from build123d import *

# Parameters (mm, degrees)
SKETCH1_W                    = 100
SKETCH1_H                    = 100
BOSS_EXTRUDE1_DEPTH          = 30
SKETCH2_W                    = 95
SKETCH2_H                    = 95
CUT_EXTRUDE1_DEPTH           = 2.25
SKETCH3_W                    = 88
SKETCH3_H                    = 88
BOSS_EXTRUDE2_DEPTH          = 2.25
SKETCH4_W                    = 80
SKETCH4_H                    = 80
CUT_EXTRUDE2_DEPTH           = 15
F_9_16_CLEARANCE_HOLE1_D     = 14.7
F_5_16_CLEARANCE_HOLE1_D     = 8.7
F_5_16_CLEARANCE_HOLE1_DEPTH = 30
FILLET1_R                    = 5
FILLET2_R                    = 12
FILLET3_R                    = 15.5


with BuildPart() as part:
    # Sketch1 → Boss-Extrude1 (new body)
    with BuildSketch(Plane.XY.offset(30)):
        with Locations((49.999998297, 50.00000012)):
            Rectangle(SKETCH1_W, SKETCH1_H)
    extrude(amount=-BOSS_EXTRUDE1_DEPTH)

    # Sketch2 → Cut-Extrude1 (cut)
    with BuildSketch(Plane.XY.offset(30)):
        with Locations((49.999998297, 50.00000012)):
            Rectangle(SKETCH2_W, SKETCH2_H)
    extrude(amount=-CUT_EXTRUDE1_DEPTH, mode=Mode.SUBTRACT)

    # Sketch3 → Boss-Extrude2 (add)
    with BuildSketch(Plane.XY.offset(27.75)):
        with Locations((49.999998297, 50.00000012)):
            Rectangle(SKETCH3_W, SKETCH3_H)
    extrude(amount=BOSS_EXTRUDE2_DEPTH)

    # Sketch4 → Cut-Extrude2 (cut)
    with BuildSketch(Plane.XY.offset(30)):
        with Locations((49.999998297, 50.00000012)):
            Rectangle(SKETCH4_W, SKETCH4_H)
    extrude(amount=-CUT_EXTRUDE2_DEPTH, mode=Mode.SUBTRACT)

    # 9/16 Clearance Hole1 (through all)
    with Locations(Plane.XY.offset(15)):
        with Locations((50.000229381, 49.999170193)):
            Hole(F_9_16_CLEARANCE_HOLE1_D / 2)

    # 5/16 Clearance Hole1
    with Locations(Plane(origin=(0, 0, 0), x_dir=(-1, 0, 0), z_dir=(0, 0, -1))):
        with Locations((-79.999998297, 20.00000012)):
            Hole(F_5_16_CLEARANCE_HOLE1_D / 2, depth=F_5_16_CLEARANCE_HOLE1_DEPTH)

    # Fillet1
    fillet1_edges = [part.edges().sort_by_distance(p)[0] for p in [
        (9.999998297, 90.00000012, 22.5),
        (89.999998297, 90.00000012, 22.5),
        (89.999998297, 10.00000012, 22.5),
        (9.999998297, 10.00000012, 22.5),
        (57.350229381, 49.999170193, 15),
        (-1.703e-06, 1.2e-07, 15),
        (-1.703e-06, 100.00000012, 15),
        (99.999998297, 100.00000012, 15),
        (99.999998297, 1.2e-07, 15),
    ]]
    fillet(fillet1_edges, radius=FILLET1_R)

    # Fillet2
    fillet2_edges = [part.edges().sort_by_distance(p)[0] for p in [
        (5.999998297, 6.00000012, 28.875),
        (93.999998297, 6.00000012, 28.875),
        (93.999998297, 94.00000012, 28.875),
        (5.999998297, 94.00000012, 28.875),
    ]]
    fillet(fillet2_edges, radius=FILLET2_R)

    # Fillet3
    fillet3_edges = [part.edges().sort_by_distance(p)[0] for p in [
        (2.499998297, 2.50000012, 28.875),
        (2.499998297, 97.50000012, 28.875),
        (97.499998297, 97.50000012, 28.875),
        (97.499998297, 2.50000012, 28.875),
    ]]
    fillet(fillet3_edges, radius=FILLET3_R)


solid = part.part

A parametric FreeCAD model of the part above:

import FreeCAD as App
import Part
import Sketcher
from FreeCAD import Vector
Q = App.Units.Quantity


def edges_at(feature, points):
    """Names of the edges that pass closest to the given points."""
    edges = feature.Shape.Edges
    near = lambda p: min(range(len(edges)), key=lambda i: edges[i].distToShape(Part.Vertex(*p))[0])
    return sorted({f"Edge{near(p) + 1}" for p in points})

doc = App.newDocument("Part")
body = doc.addObject("PartDesign::Body", "Body")

# Sketch on XY plane
sketch1 = body.newObject("Sketcher::SketchObject", "Sketch")
sketch1.AttachmentSupport = (doc.getObject("XY_Plane"), [""])
sketch1.MapMode = "FlatFace"
sketch1.AttachmentOffset = App.Placement(Vector(0, 0, 30), App.Rotation())
sketch1.addGeometry([
    Part.LineSegment(Vector(-0.000002, 100, 0), Vector(-0.000002, 0, 0)),
    Part.LineSegment(Vector(-0.000002, 0, 0), Vector(99.999998, 0, 0)),
    Part.LineSegment(Vector(99.999998, 0, 0), Vector(99.999998, 100, 0)),
    Part.LineSegment(Vector(99.999998, 100, 0), Vector(-0.000002, 100, 0)),
], False)
sketch1.addConstraint([
    Sketcher.Constraint("Coincident", 0, 2, 1, 1),
    Sketcher.Constraint("Coincident", 1, 2, 2, 1),
    Sketcher.Constraint("Coincident", 2, 2, 3, 1),
    Sketcher.Constraint("Coincident", 3, 2, 0, 1),
    Sketcher.Constraint("Vertical", 0),
    Sketcher.Constraint("Horizontal", 1),
    Sketcher.Constraint("Vertical", 2),
    Sketcher.Constraint("Horizontal", 3),
    Sketcher.Constraint("Coincident", 0, 2, -1, 1),
    Sketcher.Constraint("Equal", 3, 0),
    Sketcher.Constraint("DistanceX", 1, 1, 1, 2, Q("100 mm")),
])
pad1 = body.newObject("PartDesign::Pad", "Pad")
pad1.Profile = sketch1
pad1.Length = 30
pad1.Reversed = True

# Sketch on XY plane
sketch2 = body.newObject("Sketcher::SketchObject", "Sketch001")
sketch2.AttachmentSupport = (doc.getObject("XY_Plane"), [""])
sketch2.MapMode = "FlatFace"
sketch2.AttachmentOffset = App.Placement(Vector(0, 0, 30), App.Rotation())
sketch2.addGeometry([
    Part.LineSegment(Vector(2.499998, 97.5, 0), Vector(2.499998, 2.5, 0)),
    Part.LineSegment(Vector(2.499998, 2.5, 0), Vector(97.499998, 2.5, 0)),
    Part.LineSegment(Vector(97.499998, 2.5, 0), Vector(97.499998, 97.5, 0)),
    Part.LineSegment(Vector(97.499998, 97.5, 0), Vector(2.499998, 97.5, 0)),
], False)
sketch2.addConstraint([
    Sketcher.Constraint("Coincident", 0, 2, 1, 1),
    Sketcher.Constraint("Coincident", 1, 2, 2, 1),
    Sketcher.Constraint("Coincident", 2, 2, 3, 1),
    Sketcher.Constraint("Coincident", 3, 2, 0, 1),
    Sketcher.Constraint("Vertical", 0),
    Sketcher.Constraint("Horizontal", 1),
    Sketcher.Constraint("Vertical", 2),
    Sketcher.Constraint("Horizontal", 3),
    Sketcher.Constraint("Equal", 3, 0),
    Sketcher.Constraint("DistanceX", 1, 1, 1, 2, Q("95 mm")),
    Sketcher.Constraint("DistanceX", -1, 1, 0, 2, Q("2.499998 mm")),
    Sketcher.Constraint("DistanceY", -1, 1, 0, 2, Q("2.5 mm")),
])
pocket1 = body.newObject("PartDesign::Pocket", "Pocket")
pocket1.Profile = sketch2
pocket1.Length = 2.25

# Sketch on XY plane
sketch3 = body.newObject("Sketcher::SketchObject", "Sketch002")
sketch3.AttachmentSupport = (doc.getObject("XY_Plane"), [""])
sketch3.MapMode = "FlatFace"
sketch3.AttachmentOffset = App.Placement(Vector(0, 0, 27.75), App.Rotation())
sketch3.addGeometry([
    Part.LineSegment(Vector(5.999998, 94, 0), Vector(5.999998, 6, 0)),
    Part.LineSegment(Vector(5.999998, 6, 0), Vector(93.999998, 6, 0)),
    Part.LineSegment(Vector(93.999998, 6, 0), Vector(93.999998, 94, 0)),
    Part.LineSegment(Vector(93.999998, 94, 0), Vector(5.999998, 94, 0)),
], False)
sketch3.addConstraint([
    Sketcher.Constraint("Coincident", 0, 2, 1, 1),
    Sketcher.Constraint("Coincident", 1, 2, 2, 1),
    Sketcher.Constraint("Coincident", 2, 2, 3, 1),
    Sketcher.Constraint("Coincident", 3, 2, 0, 1),
    Sketcher.Constraint("Vertical", 0),
    Sketcher.Constraint("Horizontal", 1),
    Sketcher.Constraint("Vertical", 2),
    Sketcher.Constraint("Horizontal", 3),
    Sketcher.Constraint("Equal", 3, 0),
    Sketcher.Constraint("DistanceX", 1, 1, 1, 2, Q("88 mm")),
    Sketcher.Constraint("DistanceX", -1, 1, 0, 2, Q("5.999998 mm")),
    Sketcher.Constraint("DistanceY", -1, 1, 0, 2, Q("6 mm")),
])
pad2 = body.newObject("PartDesign::Pad", "Pad001")
pad2.Profile = sketch3
pad2.Length = 2.25

# Sketch on XY plane
sketch4 = body.newObject("Sketcher::SketchObject", "Sketch003")
sketch4.AttachmentSupport = (doc.getObject("XY_Plane"), [""])
sketch4.MapMode = "FlatFace"
sketch4.AttachmentOffset = App.Placement(Vector(0, 0, 30), App.Rotation())
sketch4.addGeometry([
    Part.LineSegment(Vector(9.999998, 90, 0), Vector(9.999998, 10, 0)),
    Part.LineSegment(Vector(9.999998, 10, 0), Vector(89.999998, 10, 0)),
    Part.LineSegment(Vector(89.999998, 10, 0), Vector(89.999998, 90, 0)),
    Part.LineSegment(Vector(89.999998, 90, 0), Vector(9.999998, 90, 0)),
], False)
sketch4.addConstraint([
    Sketcher.Constraint("Coincident", 0, 2, 1, 1),
    Sketcher.Constraint("Coincident", 1, 2, 2, 1),
    Sketcher.Constraint("Coincident", 2, 2, 3, 1),
    Sketcher.Constraint("Coincident", 3, 2, 0, 1),
    Sketcher.Constraint("Vertical", 0),
    Sketcher.Constraint("Horizontal", 1),
    Sketcher.Constraint("Vertical", 2),
    Sketcher.Constraint("Horizontal", 3),
    Sketcher.Constraint("Equal", 3, 0),
    Sketcher.Constraint("DistanceX", 1, 1, 1, 2, Q("80 mm")),
    Sketcher.Constraint("DistanceX", -1, 1, 0, 2, Q("9.999998 mm")),
    Sketcher.Constraint("DistanceY", -1, 1, 0, 2, Q("10 mm")),
])
pocket2 = body.newObject("PartDesign::Pocket", "Pocket001")
pocket2.Profile = sketch4
pocket2.Length = 15

# Sketch on XY plane
sketch5 = body.newObject("Sketcher::SketchObject", "Sketch004")
sketch5.AttachmentSupport = (doc.getObject("XY_Plane"), [""])
sketch5.MapMode = "FlatFace"
sketch5.AttachmentOffset = App.Placement(Vector(0, 0, 15), App.Rotation())
sketch5.addGeometry(Part.Circle(Vector(50.000229, 49.99917, 0), Vector(0, 0, 1), 7.35), False)
sketch5.addConstraint([
    Sketcher.Constraint("Diameter", 0, Q("14.7 mm")),
    Sketcher.Constraint("DistanceX", -1, 1, 0, 3, Q("50.000229 mm")),
    Sketcher.Constraint("DistanceY", -1, 1, 0, 3, Q("49.99917 mm")),
])
doc.recompute()
hole = body.newObject("PartDesign::Hole", "Hole")
hole.Profile = sketch5
hole.ThreadType = "None"
hole.Diameter = 14.7
hole.DepthType = "ThroughAll"

# Sketch on XY plane
sketch6 = body.newObject("Sketcher::SketchObject", "Sketch005")
sketch6.AttachmentSupport = (doc.getObject("XY_Plane"), [""])
sketch6.MapMode = "FlatFace"
sketch6.addGeometry(Part.Circle(Vector(79.999998, 20, 0), Vector(0, 0, 1), 4.35), False)
sketch6.addConstraint([
    Sketcher.Constraint("Diameter", 0, Q("8.7 mm")),
    Sketcher.Constraint("DistanceX", -1, 1, 0, 3, Q("79.999998 mm")),
    Sketcher.Constraint("DistanceY", -1, 1, 0, 3, Q("20 mm")),
])
doc.recompute()
hole2 = body.newObject("PartDesign::Hole", "Hole001")
hole2.Profile = sketch6
hole2.ThreadType = "None"
hole2.Diameter = 8.7
hole2.DepthType = "Dimension"
hole2.Depth = 30
hole2.DrillPoint = "Flat"
hole2.Reversed = True
doc.recompute()

fillet = body.newObject("PartDesign::Fillet", "Fillet")
fillet.Base = (hole2, edges_at(hole2, [
    (10, 90, 22.5),
    (90, 90, 22.5),
    (90, 10, 22.5),
    (10, 10, 22.5),
    (57.35, 49.999, 15),
    (0, 0, 15),
    (0, 100, 15),
    (100, 100, 15),
    (100, 0, 15),
]))
fillet.Radius = 5
doc.recompute()

fillet2 = body.newObject("PartDesign::Fillet", "Fillet001")
fillet2.Base = (fillet, edges_at(fillet, [
    (6, 6, 28.875),
    (94, 6, 28.875),
    (94, 94, 28.875),
    (6, 94, 28.875),
]))
fillet2.Radius = 12
doc.recompute()

fillet3 = body.newObject("PartDesign::Fillet", "Fillet002")
fillet3.Base = (fillet2, edges_at(fillet2, [
    (2.5, 2.5, 28.875),
    (2.5, 97.5, 28.875),
    (97.5, 97.5, 28.875),
    (97.5, 2.5, 28.875),
]))
fillet3.Radius = 15.5

doc.recompute()
